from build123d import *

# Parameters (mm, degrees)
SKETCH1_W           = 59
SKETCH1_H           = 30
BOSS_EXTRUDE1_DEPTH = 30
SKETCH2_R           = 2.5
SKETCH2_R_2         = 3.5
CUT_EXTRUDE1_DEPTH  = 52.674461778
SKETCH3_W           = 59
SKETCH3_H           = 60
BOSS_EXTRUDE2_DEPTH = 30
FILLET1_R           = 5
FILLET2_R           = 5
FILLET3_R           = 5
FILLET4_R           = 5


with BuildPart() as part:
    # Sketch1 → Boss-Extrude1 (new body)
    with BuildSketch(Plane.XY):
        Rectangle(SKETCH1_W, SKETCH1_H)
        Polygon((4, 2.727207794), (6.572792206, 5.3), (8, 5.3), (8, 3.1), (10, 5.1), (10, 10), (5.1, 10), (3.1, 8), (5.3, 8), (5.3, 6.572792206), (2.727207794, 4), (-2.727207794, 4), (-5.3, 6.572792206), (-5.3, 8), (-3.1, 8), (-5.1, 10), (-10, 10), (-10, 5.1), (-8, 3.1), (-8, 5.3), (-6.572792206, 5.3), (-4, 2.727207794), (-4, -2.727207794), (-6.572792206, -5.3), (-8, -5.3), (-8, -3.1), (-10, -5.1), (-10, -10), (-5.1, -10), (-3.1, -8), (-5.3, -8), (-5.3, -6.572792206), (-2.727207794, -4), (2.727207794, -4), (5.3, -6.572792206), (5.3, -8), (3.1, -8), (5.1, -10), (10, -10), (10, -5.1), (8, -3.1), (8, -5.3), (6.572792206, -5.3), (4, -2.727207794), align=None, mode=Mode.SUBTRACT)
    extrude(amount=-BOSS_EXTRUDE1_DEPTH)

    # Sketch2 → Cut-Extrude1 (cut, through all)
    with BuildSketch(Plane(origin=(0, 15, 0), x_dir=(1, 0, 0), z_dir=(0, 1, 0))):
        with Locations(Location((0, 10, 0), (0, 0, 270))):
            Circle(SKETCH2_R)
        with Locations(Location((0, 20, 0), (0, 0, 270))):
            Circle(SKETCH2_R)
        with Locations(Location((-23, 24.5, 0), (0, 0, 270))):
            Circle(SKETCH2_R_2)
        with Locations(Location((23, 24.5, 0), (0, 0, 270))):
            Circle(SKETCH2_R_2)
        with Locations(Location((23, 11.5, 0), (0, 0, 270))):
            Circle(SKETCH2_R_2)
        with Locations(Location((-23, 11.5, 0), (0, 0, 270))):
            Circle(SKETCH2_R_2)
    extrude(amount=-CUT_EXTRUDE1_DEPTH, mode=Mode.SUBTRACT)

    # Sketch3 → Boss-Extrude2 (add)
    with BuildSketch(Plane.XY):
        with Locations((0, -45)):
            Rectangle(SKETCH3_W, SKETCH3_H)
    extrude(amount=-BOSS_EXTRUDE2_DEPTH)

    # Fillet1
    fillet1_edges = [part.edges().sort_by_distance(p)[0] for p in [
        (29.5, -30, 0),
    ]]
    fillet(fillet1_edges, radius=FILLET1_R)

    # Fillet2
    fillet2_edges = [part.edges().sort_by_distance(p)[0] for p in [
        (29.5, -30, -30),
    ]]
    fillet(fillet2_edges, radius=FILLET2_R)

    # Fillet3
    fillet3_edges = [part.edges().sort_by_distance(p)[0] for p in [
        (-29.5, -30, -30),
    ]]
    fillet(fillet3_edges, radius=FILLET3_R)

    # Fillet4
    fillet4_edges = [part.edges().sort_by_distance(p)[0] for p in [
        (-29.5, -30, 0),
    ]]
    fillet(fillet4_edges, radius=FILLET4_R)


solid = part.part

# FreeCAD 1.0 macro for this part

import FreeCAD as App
import Part
import Sketcher

V = App.Vector


def edges_at(feature, points):
    """Names of the edges that pass closest to the given points."""
    edges = feature.Shape.Edges
    near = lambda p: min(range(len(edges)), key=lambda i: edges[i].distToShape(Part.Vertex(*p))[0])
    return sorted({f"Edge{near(p) + 1}" for p in points})

doc = App.newDocument("Part")
body = doc.addObject("PartDesign::Body", "Body")

sketch1 = body.newObject("Sketcher::SketchObject", "Sketch")
sketch1.AttachmentSupport = (doc.getObject("XY_Plane"), [""])
sketch1.MapMode = "FlatFace"
sketch1.addGeometry(Part.LineSegment(V(-29.5, 15, 0), V(-29.5, -15, 0)), False)
sketch1.addGeometry(Part.LineSegment(V(-29.5, -15, 0), V(29.5, -15, 0)), False)
sketch1.addGeometry(Part.LineSegment(V(29.5, -15, 0), V(29.5, 15, 0)), False)
sketch1.addGeometry(Part.LineSegment(V(29.5, 15, 0), V(-29.5, 15, 0)), False)
sketch1.addGeometry(Part.LineSegment(V(6.6, 5.3, 0), V(4, 2.7, 0)), False)
sketch1.addGeometry(Part.LineSegment(V(4, 2.7, 0), V(4, -2.7, 0)), False)
sketch1.addGeometry(Part.LineSegment(V(4, -2.7, 0), V(6.6, -5.3, 0)), False)
sketch1.addGeometry(Part.LineSegment(V(6.6, -5.3, 0), V(8, -5.3, 0)), False)
sketch1.addGeometry(Part.LineSegment(V(8, -5.3, 0), V(8, -3.1, 0)), False)
sketch1.addGeometry(Part.LineSegment(V(8, -3.1, 0), V(10, -5.1, 0)), False)
sketch1.addGeometry(Part.LineSegment(V(10, -5.1, 0), V(10, -10, 0)), False)
sketch1.addGeometry(Part.LineSegment(V(10, -10, 0), V(5.1, -10, 0)), False)
sketch1.addGeometry(Part.LineSegment(V(5.1, -10, 0), V(3.1, -8, 0)), False)
sketch1.addGeometry(Part.LineSegment(V(3.1, -8, 0), V(5.3, -8, 0)), False)
sketch1.addGeometry(Part.LineSegment(V(5.3, -8, 0), V(5.3, -6.6, 0)), False)
sketch1.addGeometry(Part.LineSegment(V(5.3, -6.6, 0), V(2.7, -4, 0)), False)
sketch1.addGeometry(Part.LineSegment(V(2.7, -4, 0), V(-2.7, -4, 0)), False)
sketch1.addGeometry(Part.LineSegment(V(-2.7, -4, 0), V(-5.3, -6.6, 0)), False)
sketch1.addGeometry(Part.LineSegment(V(-5.3, -6.6, 0), V(-5.3, -8, 0)), False)
sketch1.addGeometry(Part.LineSegment(V(-5.3, -8, 0), V(-3.1, -8, 0)), False)
sketch1.addGeometry(Part.LineSegment(V(-3.1, -8, 0), V(-5.1, -10, 0)), False)
sketch1.addGeometry(Part.LineSegment(V(-5.1, -10, 0), V(-10, -10, 0)), False)
sketch1.addGeometry(Part.LineSegment(V(-10, -10, 0), V(-10, -5.1, 0)), False)
sketch1.addGeometry(Part.LineSegment(V(-10, -5.1, 0), V(-8, -3.1, 0)), False)
sketch1.addGeometry(Part.LineSegment(V(-8, -3.1, 0), V(-8, -5.3, 0)), False)
sketch1.addGeometry(Part.LineSegment(V(-8, -5.3, 0), V(-6.6, -5.3, 0)), False)
sketch1.addGeometry(Part.LineSegment(V(-6.6, -5.3, 0), V(-4, -2.7, 0)), False)
sketch1.addGeometry(Part.LineSegment(V(-4, -2.7, 0), V(-4, 2.7, 0)), False)
sketch1.addGeometry(Part.LineSegment(V(-4, 2.7, 0), V(-6.6, 5.3, 0)), False)
sketch1.addGeometry(Part.LineSegment(V(-6.6, 5.3, 0), V(-8, 5.3, 0)), False)
sketch1.addGeometry(Part.LineSegment(V(-8, 5.3, 0), V(-8, 3.1, 0)), False)
sketch1.addGeometry(Part.LineSegment(V(-8, 3.1, 0), V(-10, 5.1, 0)), False)
sketch1.addGeometry(Part.LineSegment(V(-10, 5.1, 0), V(-10, 10, 0)), False)
sketch1.addGeometry(Part.LineSegment(V(-10, 10, 0), V(-5.1, 10, 0)), False)
sketch1.addGeometry(Part.LineSegment(V(-5.1, 10, 0), V(-3.1, 8, 0)), False)
sketch1.addGeometry(Part.LineSegment(V(-3.1, 8, 0), V(-5.3, 8, 0)), False)
sketch1.addGeometry(Part.LineSegment(V(-5.3, 8, 0), V(-5.3, 6.6, 0)), False)
sketch1.addGeometry(Part.LineSegment(V(-5.3, 6.6, 0), V(-2.7, 4, 0)), False)
sketch1.addGeometry(Part.LineSegment(V(-2.7, 4, 0), V(2.7, 4, 0)), False)
sketch1.addGeometry(Part.LineSegment(V(2.7, 4, 0), V(5.3, 6.6, 0)), False)
sketch1.addGeometry(Part.LineSegment(V(5.3, 6.6, 0), V(5.3, 8, 0)), False)
sketch1.addGeometry(Part.LineSegment(V(5.3, 8, 0), V(3.1, 8, 0)), False)
sketch1.addGeometry(Part.LineSegment(V(3.1, 8, 0), V(5.1, 10, 0)), False)
sketch1.addGeometry(Part.LineSegment(V(5.1, 10, 0), V(10, 10, 0)), False)
sketch1.addGeometry(Part.LineSegment(V(10, 10, 0), V(10, 5.1, 0)), False)
sketch1.addGeometry(Part.LineSegment(V(10, 5.1, 0), V(8, 3.1, 0)), False)
sketch1.addGeometry(Part.LineSegment(V(8, 3.1, 0), V(8, 5.3, 0)), False)
sketch1.addGeometry(Part.LineSegment(V(8, 5.3, 0), V(6.6, 5.3, 0)), False)
sketch1.addConstraint(Sketcher.Constraint("Coincident", 0, 2, 1, 1))
sketch1.addConstraint(Sketcher.Constraint("Coincident", 1, 2, 2, 1))
sketch1.addConstraint(Sketcher.Constraint("Coincident", 2, 2, 3, 1))
sketch1.addConstraint(Sketcher.Constraint("Coincident", 3, 2, 0, 1))
sketch1.addConstraint(Sketcher.Constraint("Coincident", 4, 2, 5, 1))
sketch1.addConstraint(Sketcher.Constraint("Coincident", 5, 2, 6, 1))
sketch1.addConstraint(Sketcher.Constraint("Coincident", 6, 2, 7, 1))
sketch1.addConstraint(Sketcher.Constraint("Coincident", 7, 2, 8, 1))
sketch1.addConstraint(Sketcher.Constraint("Coincident", 8, 2, 9, 1))
sketch1.addConstraint(Sketcher.Constraint("Coincident", 9, 2, 10, 1))
sketch1.addConstraint(Sketcher.Constraint("Coincident", 10, 2, 11, 1))
sketch1.addConstraint(Sketcher.Constraint("Coincident", 11, 2, 12, 1))
sketch1.addConstraint(Sketcher.Constraint("Coincident", 12, 2, 13, 1))
sketch1.addConstraint(Sketcher.Constraint("Coincident", 13, 2, 14, 1))
sketch1.addConstraint(Sketcher.Constraint("Coincident", 14, 2, 15, 1))
sketch1.addConstraint(Sketcher.Constraint("Coincident", 15, 2, 16, 1))
sketch1.addConstraint(Sketcher.Constraint("Coincident", 16, 2, 17, 1))
sketch1.addConstraint(Sketcher.Constraint("Coincident", 17, 2, 18, 1))
sketch1.addConstraint(Sketcher.Constraint("Coincident", 18, 2, 19, 1))
sketch1.addConstraint(Sketcher.Constraint("Coincident", 19, 2, 20, 1))
sketch1.addConstraint(Sketcher.Constraint("Coincident", 20, 2, 21, 1))
sketch1.addConstraint(Sketcher.Constraint("Coincident", 21, 2, 22, 1))
sketch1.addConstraint(Sketcher.Constraint("Coincident", 22, 2, 23, 1))
sketch1.addConstraint(Sketcher.Constraint("Coincident", 23, 2, 24, 1))
sketch1.addConstraint(Sketcher.Constraint("Coincident", 24, 2, 25, 1))
sketch1.addConstraint(Sketcher.Constraint("Coincident", 25, 2, 26, 1))
sketch1.addConstraint(Sketcher.Constraint("Coincident", 26, 2, 27, 1))
sketch1.addConstraint(Sketcher.Constraint("Coincident", 27, 2, 28, 1))
sketch1.addConstraint(Sketcher.Constraint("Coincident", 28, 2, 29, 1))
sketch1.addConstraint(Sketcher.Constraint("Coincident", 29, 2, 30, 1))
sketch1.addConstraint(Sketcher.Constraint("Coincident", 30, 2, 31, 1))
sketch1.addConstraint(Sketcher.Constraint("Coincident", 31, 2, 32, 1))
sketch1.addConstraint(Sketcher.Constraint("Coincident", 32, 2, 33, 1))
sketch1.addConstraint(Sketcher.Constraint("Coincident", 33, 2, 34, 1))
sketch1.addConstraint(Sketcher.Constraint("Coincident", 34, 2, 35, 1))
sketch1.addConstraint(Sketcher.Constraint("Coincident", 35, 2, 36, 1))
sketch1.addConstraint(Sketcher.Constraint("Coincident", 36, 2, 37, 1))
sketch1.addConstraint(Sketcher.Constraint("Coincident", 37, 2, 38, 1))
sketch1.addConstraint(Sketcher.Constraint("Coincident", 38, 2, 39, 1))
sketch1.addConstraint(Sketcher.Constraint("Coincident", 39, 2, 40, 1))
sketch1.addConstraint(Sketcher.Constraint("Coincident", 40, 2, 41, 1))
sketch1.addConstraint(Sketcher.Constraint("Coincident", 41, 2, 42, 1))
sketch1.addConstraint(Sketcher.Constraint("Coincident", 42, 2, 43, 1))
sketch1.addConstraint(Sketcher.Constraint("Coincident", 43, 2, 44, 1))
sketch1.addConstraint(Sketcher.Constraint("Coincident", 44, 2, 45, 1))
sketch1.addConstraint(Sketcher.Constraint("Coincident", 45, 2, 46, 1))
sketch1.addConstraint(Sketcher.Constraint("Coincident", 46, 2, 47, 1))
sketch1.addConstraint(Sketcher.Constraint("Coincident", 47, 2, 4, 1))
sketch1.addConstraint(Sketcher.Constraint("Vertical", 0))
sketch1.addConstraint(Sketcher.Constraint("Horizontal", 1))
sketch1.addConstraint(Sketcher.Constraint("Vertical", 2))
sketch1.addConstraint(Sketcher.Constraint("Horizontal", 3))
sketch1.addConstraint(Sketcher.Constraint("Vertical", 5))
sketch1.addConstraint(Sketcher.Constraint("Horizontal", 7))
sketch1.addConstraint(Sketcher.Constraint("Vertical", 8))
sketch1.addConstraint(Sketcher.Constraint("Vertical", 10))
sketch1.addConstraint(Sketcher.Constraint("Horizontal", 11))
sketch1.addConstraint(Sketcher.Constraint("Horizontal", 13))
sketch1.addConstraint(Sketcher.Constraint("Vertical", 14))
sketch1.addConstraint(Sketcher.Constraint("Horizontal", 16))
sketch1.addConstraint(Sketcher.Constraint("Vertical", 18))
sketch1.addConstraint(Sketcher.Constraint("Horizontal", 19))
sketch1.addConstraint(Sketcher.Constraint("Horizontal", 21))
sketch1.addConstraint(Sketcher.Constraint("Vertical", 22))
sketch1.addConstraint(Sketcher.Constraint("Vertical", 24))
sketch1.addConstraint(Sketcher.Constraint("Horizontal", 25))
sketch1.addConstraint(Sketcher.Constraint("Vertical", 27))
sketch1.addConstraint(Sketcher.Constraint("Horizontal", 29))
sketch1.addConstraint(Sketcher.Constraint("Vertical", 30))
sketch1.addConstraint(Sketcher.Constraint("Vertical", 32))
sketch1.addConstraint(Sketcher.Constraint("Horizontal", 33))
sketch1.addConstraint(Sketcher.Constraint("Horizontal", 35))
sketch1.addConstraint(Sketcher.Constraint("Vertical", 36))
sketch1.addConstraint(Sketcher.Constraint("Horizontal", 38))
sketch1.addConstraint(Sketcher.Constraint("Vertical", 40))
sketch1.addConstraint(Sketcher.Constraint("Horizontal", 41))
sketch1.addConstraint(Sketcher.Constraint("Horizontal", 43))
sketch1.addConstraint(Sketcher.Constraint("Vertical", 44))
sketch1.addConstraint(Sketcher.Constraint("Vertical", 46))
sketch1.addConstraint(Sketcher.Constraint("Horizontal", 47))
sketch1.addConstraint(Sketcher.Constraint("Symmetric", 0, 2, 2, 2, -1, 1))
sketch1.addConstraint(Sketcher.Constraint("Symmetric", 4, 2, 26, 2, -1, 1))
sketch1.addConstraint(Sketcher.Constraint("Symmetric", 6, 2, 28, 2, -1, 1))
sketch1.addConstraint(Sketcher.Constraint("Symmetric", 8, 2, 30, 2, -1, 1))
sketch1.addConstraint(Sketcher.Constraint("Symmetric", 9, 2, 31, 2, -1, 1))
sketch1.addConstraint(Sketcher.Constraint("Symmetric", 11, 2, 33, 2, -1, 1))
sketch1.addConstraint(Sketcher.Constraint("Symmetric", 12, 2, 34, 2, -1, 1))
sketch1.addConstraint(Sketcher.Constraint("Symmetric", 14, 2, 36, 2, -1, 1))
sketch1.addConstraint(Sketcher.Constraint("Symmetric", 15, 2, 37, 2, -1, 1))
sketch1.addConstraint(Sketcher.Constraint("Symmetric", 17, 2, 39, 2, -1, 1))
sketch1.addConstraint(Sketcher.Constraint("Symmetric", 19, 2, 41, 2, -1, 1))
sketch1.addConstraint(Sketcher.Constraint("Symmetric", 20, 2, 42, 2, -1, 1))
sketch1.addConstraint(Sketcher.Constraint("Symmetric", 22, 2, 44, 2, -1, 1))
sketch1.addConstraint(Sketcher.Constraint("Symmetric", 23, 2, 45, 2, -1, 1))
sketch1.addConstraint(Sketcher.Constraint("Symmetric", 25, 2, 47, 2, -1, 1))
sketch1.addConstraint(Sketcher.Constraint("Symmetric", 14, 2, 17, 2, -2))
sketch1.addConstraint(Sketcher.Constraint("Symmetric", 12, 2, 19, 2, -2))
sketch1.addConstraint(Sketcher.Constraint("Symmetric", 11, 2, 20, 2, -2))
sketch1.addConstraint(Sketcher.Constraint("Symmetric", 9, 2, 22, 2, -2))
sketch1.addConstraint(Sketcher.Constraint("Symmetric", 8, 2, 23, 2, -2))
sketch1.addConstraint(Sketcher.Constraint("Symmetric", 6, 2, 25, 2, -2))
sketch1.addConstraint(Sketcher.Constraint("Perpendicular", 4, 6))
sketch1.addConstraint(Sketcher.Constraint("Parallel", 6, 9))
sketch1.addConstraint(Sketcher.Constraint("Parallel", 9, 12))
sketch1.addConstraint(Sketcher.Constraint("Parallel", 12, 15))
sketch1.addConstraint(Sketcher.Constraint("Perpendicular", 15, 17))
sketch1.addConstraint(Sketcher.Constraint("Parallel", 17, 20))
sketch1.addConstraint(Sketcher.Constraint("Perpendicular", 26, 28))
sketch1.addConstraint(Sketcher.Constraint("Perpendicular", 37, 39))
sketch1.addConstraint(Sketcher.Constraint("Equal", 38, 5))
sketch1.addConstraint(Sketcher.Constraint("Equal", 41, 8))
sketch1.addConstraint(Sketcher.Constraint("Equal", 43, 10))
sketch1.addConstraint(Sketcher.Constraint("Equal", 47, 14))
sketch1.addConstraint(Sketcher.Constraint("Equal", 9, 12))
sketch1.addConstraint(Sketcher.Constraint("Equal", 6, 15))
sketch1.addConstraint(Sketcher.Constraint("DistanceX", 1, 1, 1, 2, 59.0))
sketch1.addConstraint(Sketcher.Constraint("DistanceY", 0, 2, 0, 1, 30.0))
sketch1.addConstraint(Sketcher.Constraint("DistanceX", 11, 2, 11, 1, 4.9))
sketch1.addConstraint(Sketcher.Constraint("DistanceX", 13, 1, 13, 2, 2.2))
sketch1.addConstraint(Sketcher.Constraint("DistanceX", -1, 1, 4, 2, 4.0))
sketch1.addConstraint(Sketcher.Constraint("DistanceX", -1, 1, 7, 2, 8.0))
sketch1.addConstraint(Sketcher.Constraint("DistanceX", -1, 1, 9, 2, 10.0))
sketch1.addConstraint(Sketcher.Constraint("DistanceX", 7, 1, 7, 2, 1.427208))
pad1 = body.newObject("PartDesign::Pad", "Pad")
pad1.Profile = sketch1
pad1.Length = 30
pad1.Reversed = True

sketch2 = body.newObject("Sketcher::SketchObject", "Sketch001")
sketch2.AttachmentSupport = (doc.getObject("XZ_Plane"), [""])
sketch2.MapMode = "FlatFace"
sketch2.AttachmentOffset = App.Placement(V(0, 0, -15), App.Rotation())
sketch2.addGeometry(Part.Circle(V(0, -10, 0), V(0, 0, 1), 2.5), False)
sketch2.addGeometry(Part.Circle(V(0, -20, 0), V(0, 0, 1), 2.5), False)
sketch2.addGeometry(Part.Circle(V(-23, -24.5, 0), V(0, 0, 1), 3.5), False)
sketch2.addGeometry(Part.Circle(V(23, -24.5, 0), V(0, 0, 1), 3.5), False)
sketch2.addGeometry(Part.Circle(V(23, -11.5, 0), V(0, 0, 1), 3.5), False)
sketch2.addGeometry(Part.Circle(V(-23, -11.5, 0), V(0, 0, 1), 3.5), False)
sketch2.addConstraint(Sketcher.Constraint("Equal", 0, 1))
sketch2.addConstraint(Sketcher.Constraint("Equal", 2, 3))
sketch2.addConstraint(Sketcher.Constraint("Equal", 3, 4))
sketch2.addConstraint(Sketcher.Constraint("Equal", 4, 5))
sketch2.addConstraint(Sketcher.Constraint("Symmetric", 2, 3, 3, 3, -2))
sketch2.addConstraint(Sketcher.Constraint("Symmetric", 4, 3, 5, 3, -2))
sketch2.addConstraint(Sketcher.Constraint("PointOnObject", 0, 3, -2))
sketch2.addConstraint(Sketcher.Constraint("PointOnObject", 1, 3, -2))
sketch2.addConstraint(Sketcher.Constraint("Vertical", 3, 3, 4, 3))
sketch2.addConstraint(Sketcher.Constraint("Diameter", 0, 5.0))
sketch2.addConstraint(Sketcher.Constraint("Diameter", 2, 7.0))
sketch2.addConstraint(Sketcher.Constraint("DistanceY", 0, 3, -1, 1, 10.0))
sketch2.addConstraint(Sketcher.Constraint("DistanceY", 1, 3, -1, 1, 20.0))
sketch2.addConstraint(Sketcher.Constraint("DistanceX", 2, 3, -1, 1, 23.0))
sketch2.addConstraint(Sketcher.Constraint("DistanceY", 3, 3, 4, 3, 13.0))
sketch2.addConstraint(Sketcher.Constraint("DistanceY", 2, 3, -1, 1, 24.5))
pocket1 = body.newObject("PartDesign::Pocket", "Pocket")
pocket1.Profile = sketch2
pocket1.Type = "ThroughAll"
pocket1.Reversed = True

sketch3 = body.newObject("Sketcher::SketchObject", "Sketch002")
sketch3.AttachmentSupport = (doc.getObject("XY_Plane"), [""])
sketch3.MapMode = "FlatFace"
sketch3.addGeometry(Part.LineSegment(V(-30, -15, 0), V(-30, -75, 0)), False)
sketch3.addGeometry(Part.LineSegment(V(-30, -75, 0), V(30, -75, 0)), False)
sketch3.addGeometry(Part.LineSegment(V(30, -75, 0), V(30, -15, 0)), False)
sketch3.addGeometry(Part.LineSegment(V(30, -15, 0), V(-30, -15, 0)), False)
sketch3.addConstraint(Sketcher.Constraint("Coincident", 0, 2, 1, 1))
sketch3.addConstraint(Sketcher.Constraint("Coincident", 1, 2, 2, 1))
sketch3.addConstraint(Sketcher.Constraint("Coincident", 2, 2, 3, 1))
sketch3.addConstraint(Sketcher.Constraint("Coincident", 3, 2, 0, 1))
sketch3.addConstraint(Sketcher.Constraint("Vertical", 0))
sketch3.addConstraint(Sketcher.Constraint("Horizontal", 1))
sketch3.addConstraint(Sketcher.Constraint("Vertical", 2))
sketch3.addConstraint(Sketcher.Constraint("Horizontal", 3))
sketch3.addConstraint(Sketcher.Constraint("DistanceX", 1, 1, 1, 2, 59.0))
sketch3.addConstraint(Sketcher.Constraint("DistanceY", 0, 2, 0, 1, 60.0))
sketch3.addConstraint(Sketcher.Constraint("DistanceY", 0, 2, -1, 1, 75.0))
sketch3.addConstraint(Sketcher.Constraint("DistanceX", 0, 2, -1, 1, 29.5))
pad2 = body.newObject("PartDesign::Pad", "Pad001")
pad2.Profile = sketch3
pad2.Length = 30
pad2.Reversed = True
doc.recompute()

fillet = body.newObject("PartDesign::Fillet", "Fillet")
fillet.Base = (pad2, edges_at(pad2, [(29.5, -30, 0)]))
fillet.Radius = 5
doc.recompute()

fillet2 = body.newObject("PartDesign::Fillet", "Fillet001")
fillet2.Base = (fillet, edges_at(fillet, [(29.5, -30, -30)]))
fillet2.Radius = 5
doc.recompute()

fillet3 = body.newObject("PartDesign::Fillet", "Fillet002")
fillet3.Base = (fillet2, edges_at(fillet2, [(-29.5, -30, -30)]))
fillet3.Radius = 5
doc.recompute()

fillet4 = body.newObject("PartDesign::Fillet", "Fillet003")
fillet4.Base = (fillet3, edges_at(fillet3, [(-29.5, -30, 0)]))
fillet4.Radius = 5

doc.recompute()
